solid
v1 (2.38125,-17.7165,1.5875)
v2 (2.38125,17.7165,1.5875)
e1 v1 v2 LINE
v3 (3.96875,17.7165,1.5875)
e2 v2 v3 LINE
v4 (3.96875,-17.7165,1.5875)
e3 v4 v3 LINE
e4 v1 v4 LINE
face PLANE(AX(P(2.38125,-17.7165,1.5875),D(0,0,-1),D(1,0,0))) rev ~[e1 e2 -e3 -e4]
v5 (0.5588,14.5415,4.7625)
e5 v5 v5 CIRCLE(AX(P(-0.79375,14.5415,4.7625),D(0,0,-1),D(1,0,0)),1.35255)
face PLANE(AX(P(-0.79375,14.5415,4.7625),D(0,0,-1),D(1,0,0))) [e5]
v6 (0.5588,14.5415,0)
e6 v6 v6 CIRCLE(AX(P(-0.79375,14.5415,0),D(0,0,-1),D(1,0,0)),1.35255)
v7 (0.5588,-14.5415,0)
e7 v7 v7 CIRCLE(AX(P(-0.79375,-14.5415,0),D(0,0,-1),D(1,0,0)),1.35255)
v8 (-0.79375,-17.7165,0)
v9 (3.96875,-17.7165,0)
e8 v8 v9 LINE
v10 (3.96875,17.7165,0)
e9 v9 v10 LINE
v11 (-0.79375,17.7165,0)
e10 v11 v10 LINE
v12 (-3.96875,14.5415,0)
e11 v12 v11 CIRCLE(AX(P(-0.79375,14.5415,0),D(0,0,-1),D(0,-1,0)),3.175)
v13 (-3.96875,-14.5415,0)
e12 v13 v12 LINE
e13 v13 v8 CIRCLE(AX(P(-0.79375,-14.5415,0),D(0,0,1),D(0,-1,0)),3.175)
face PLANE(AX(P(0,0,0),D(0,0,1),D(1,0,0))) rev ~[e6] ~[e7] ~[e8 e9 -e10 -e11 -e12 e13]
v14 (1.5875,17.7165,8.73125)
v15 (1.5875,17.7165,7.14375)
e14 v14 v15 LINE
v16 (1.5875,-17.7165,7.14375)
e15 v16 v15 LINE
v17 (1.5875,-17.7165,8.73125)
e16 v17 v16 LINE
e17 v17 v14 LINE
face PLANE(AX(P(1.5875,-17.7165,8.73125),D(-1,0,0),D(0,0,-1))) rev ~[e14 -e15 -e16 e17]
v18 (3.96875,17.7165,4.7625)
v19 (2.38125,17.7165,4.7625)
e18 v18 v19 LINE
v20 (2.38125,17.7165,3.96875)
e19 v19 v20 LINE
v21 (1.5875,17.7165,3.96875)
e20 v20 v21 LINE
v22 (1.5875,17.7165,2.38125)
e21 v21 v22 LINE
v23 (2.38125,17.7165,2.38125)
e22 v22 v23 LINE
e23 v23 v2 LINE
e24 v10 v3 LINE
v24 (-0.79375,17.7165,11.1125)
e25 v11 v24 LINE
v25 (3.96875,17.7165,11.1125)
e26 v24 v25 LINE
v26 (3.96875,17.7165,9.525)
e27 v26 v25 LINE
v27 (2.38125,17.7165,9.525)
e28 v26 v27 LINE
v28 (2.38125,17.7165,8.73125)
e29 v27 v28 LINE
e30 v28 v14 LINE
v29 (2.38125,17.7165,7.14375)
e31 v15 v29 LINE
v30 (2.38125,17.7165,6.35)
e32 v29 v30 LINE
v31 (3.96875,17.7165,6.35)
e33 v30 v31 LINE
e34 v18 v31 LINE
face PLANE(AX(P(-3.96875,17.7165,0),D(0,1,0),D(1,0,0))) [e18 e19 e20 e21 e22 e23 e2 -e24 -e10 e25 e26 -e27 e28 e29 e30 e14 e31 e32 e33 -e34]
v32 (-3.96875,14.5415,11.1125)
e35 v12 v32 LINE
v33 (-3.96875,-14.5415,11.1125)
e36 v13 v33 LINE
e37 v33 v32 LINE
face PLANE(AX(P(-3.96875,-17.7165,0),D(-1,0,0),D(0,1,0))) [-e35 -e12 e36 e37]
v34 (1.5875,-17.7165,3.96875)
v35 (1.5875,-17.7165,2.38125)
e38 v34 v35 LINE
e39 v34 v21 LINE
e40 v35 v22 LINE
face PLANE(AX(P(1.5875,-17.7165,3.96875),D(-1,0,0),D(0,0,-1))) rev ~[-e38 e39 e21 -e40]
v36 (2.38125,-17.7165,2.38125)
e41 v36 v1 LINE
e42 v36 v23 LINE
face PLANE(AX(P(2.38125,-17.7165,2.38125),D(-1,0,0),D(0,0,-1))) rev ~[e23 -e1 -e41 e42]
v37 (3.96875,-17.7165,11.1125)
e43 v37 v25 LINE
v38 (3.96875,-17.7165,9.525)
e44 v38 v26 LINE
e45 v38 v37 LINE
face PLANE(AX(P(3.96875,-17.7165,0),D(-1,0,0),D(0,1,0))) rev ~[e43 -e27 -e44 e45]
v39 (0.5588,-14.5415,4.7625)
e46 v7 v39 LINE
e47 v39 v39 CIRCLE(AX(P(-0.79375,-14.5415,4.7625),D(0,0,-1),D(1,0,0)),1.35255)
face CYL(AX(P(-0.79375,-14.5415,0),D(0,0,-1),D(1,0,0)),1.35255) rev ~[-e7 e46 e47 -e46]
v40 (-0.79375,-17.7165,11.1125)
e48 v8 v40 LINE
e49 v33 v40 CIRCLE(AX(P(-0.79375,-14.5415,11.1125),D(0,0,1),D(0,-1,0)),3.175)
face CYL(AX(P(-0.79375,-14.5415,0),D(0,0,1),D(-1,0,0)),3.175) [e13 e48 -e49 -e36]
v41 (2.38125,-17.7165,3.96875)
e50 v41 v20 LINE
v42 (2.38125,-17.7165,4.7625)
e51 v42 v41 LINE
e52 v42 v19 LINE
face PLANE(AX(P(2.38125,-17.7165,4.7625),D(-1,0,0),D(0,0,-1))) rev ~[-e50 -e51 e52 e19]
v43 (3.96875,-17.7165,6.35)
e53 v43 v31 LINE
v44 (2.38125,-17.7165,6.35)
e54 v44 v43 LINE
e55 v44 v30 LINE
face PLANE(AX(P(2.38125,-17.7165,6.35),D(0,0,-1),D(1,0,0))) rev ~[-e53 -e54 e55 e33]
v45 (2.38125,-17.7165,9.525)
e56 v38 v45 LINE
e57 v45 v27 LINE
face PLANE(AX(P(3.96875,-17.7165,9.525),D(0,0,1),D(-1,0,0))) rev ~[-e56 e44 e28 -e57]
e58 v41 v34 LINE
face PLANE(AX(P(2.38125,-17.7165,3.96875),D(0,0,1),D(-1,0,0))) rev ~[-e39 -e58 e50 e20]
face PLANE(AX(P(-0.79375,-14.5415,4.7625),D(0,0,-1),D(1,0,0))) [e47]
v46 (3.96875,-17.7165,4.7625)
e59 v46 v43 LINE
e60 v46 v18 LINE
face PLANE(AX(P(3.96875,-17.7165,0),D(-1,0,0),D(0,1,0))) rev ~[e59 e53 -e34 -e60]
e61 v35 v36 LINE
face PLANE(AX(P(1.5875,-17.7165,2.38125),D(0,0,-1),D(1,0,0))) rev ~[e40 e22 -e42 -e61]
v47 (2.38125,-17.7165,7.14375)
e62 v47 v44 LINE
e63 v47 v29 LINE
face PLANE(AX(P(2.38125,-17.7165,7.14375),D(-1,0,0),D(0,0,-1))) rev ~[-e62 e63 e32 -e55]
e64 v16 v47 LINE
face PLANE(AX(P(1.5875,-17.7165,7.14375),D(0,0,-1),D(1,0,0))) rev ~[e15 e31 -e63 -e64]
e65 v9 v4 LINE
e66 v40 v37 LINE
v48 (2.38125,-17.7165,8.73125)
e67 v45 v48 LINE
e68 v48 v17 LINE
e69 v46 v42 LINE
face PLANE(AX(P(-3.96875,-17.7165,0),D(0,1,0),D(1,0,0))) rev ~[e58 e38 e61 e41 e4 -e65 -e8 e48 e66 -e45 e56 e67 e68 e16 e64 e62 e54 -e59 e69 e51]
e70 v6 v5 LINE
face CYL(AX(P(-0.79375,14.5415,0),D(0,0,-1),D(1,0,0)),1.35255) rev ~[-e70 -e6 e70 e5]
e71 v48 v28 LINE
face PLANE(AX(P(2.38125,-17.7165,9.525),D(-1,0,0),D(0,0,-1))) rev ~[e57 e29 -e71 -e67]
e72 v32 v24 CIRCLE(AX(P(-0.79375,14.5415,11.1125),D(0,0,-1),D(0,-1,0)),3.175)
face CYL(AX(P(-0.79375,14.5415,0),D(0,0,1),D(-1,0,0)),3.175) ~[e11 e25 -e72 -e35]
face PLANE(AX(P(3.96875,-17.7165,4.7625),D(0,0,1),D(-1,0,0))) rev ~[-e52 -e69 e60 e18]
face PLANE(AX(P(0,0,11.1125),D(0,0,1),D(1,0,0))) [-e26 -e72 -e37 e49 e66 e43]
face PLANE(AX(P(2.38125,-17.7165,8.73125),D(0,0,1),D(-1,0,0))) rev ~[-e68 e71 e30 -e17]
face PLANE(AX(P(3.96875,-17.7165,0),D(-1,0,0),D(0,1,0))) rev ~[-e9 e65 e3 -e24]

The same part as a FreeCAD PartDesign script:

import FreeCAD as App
import Part
import Sketcher

V = App.Vector
Q = App.Units.Quantity


def edges_at(feature, points):
    """Names of the edges that pass closest to the given points."""
    edges = feature.Shape.Edges
    near = lambda p: min(range(len(edges)), key=lambda i: edges[i].distToShape(Part.Vertex(*p))[0])
    return sorted({f"Edge{near(p) + 1}" for p in points})


def add_polygon(sketch, points):
    """Adds a closed chain of lines whose ends are joined by coincident constraints."""
    first, n = sketch.GeometryCount, len(points)
    for a, b in zip(points, points[1:] + points[:1]):
        sketch.addGeometry(Part.LineSegment(App.Vector(*a, 0), App.Vector(*b, 0)), False)
    for i in range(n):
        sketch.addConstraint(Sketcher.Constraint("Coincident", first + i, 2, first + (i + 1) % n, 1))

doc = App.newDocument("Part")
body = doc.addObject("PartDesign::Body", "Body")

# Sketch on XY plane
sketch1 = body.newObject("Sketcher::SketchObject", "Sketch")
sketch1.AttachmentSupport = (doc.getObject("XY_Plane"), [""])
sketch1.MapMode = "FlatFace"
add_polygon(sketch1, [(-4, 18), (-4, -18), (4, -18), (4, 18)])  # lines 0-3
sketch1.addConstraint([
    Sketcher.Constraint("Vertical", 0),
    Sketcher.Constraint("Horizontal", 1),
    Sketcher.Constraint("Vertical", 2),
    Sketcher.Constraint("Horizontal", 3),
    Sketcher.Constraint("Symmetric", 0, 2, 2, 2, -1, 1),
    Sketcher.Constraint("DistanceX", 1, 1, 1, 2, Q("0.3125 in")),
    Sketcher.Constraint("DistanceY", 0, 2, 0, 1, Q("1.395 in")),
])
pad1 = body.newObject("PartDesign::Pad", "Pad")
pad1.Profile = sketch1
pad1.Length = Q("0.4375 in")

# Sketch on XZ plane
sketch2 = body.newObject("Sketcher::SketchObject", "Sketch001")
sketch2.AttachmentSupport = (doc.getObject("XZ_Plane"), [""])
sketch2.MapMode = "FlatFace"
sketch2.AttachmentOffset = App.Placement(V(0, 0, 0.6975 * 25.4), App.Rotation())
add_polygon(sketch2, [(4, 9.5), (2.4, 9.5), (2.4, 8.7), (1.6, 8.7), (1.6, 7.1), (2.4, 7.1), (2.4, 6.3), (4, 6.3)])  # lines 0-7
add_polygon(sketch2, [(4, 4.8), (2.4, 4.8), (2.4, 4), (1.6, 4), (1.6, 2.4), (2.4, 2.4), (2.4, 1.6), (4, 1.6)])  # lines 8-15
sketch2.addConstraint([
    Sketcher.Constraint("Horizontal", 0),
    Sketcher.Constraint("Vertical", 1),
    Sketcher.Constraint("Horizontal", 2),
    Sketcher.Constraint("Vertical", 3),
    Sketcher.Constraint("Horizontal", 4),
    Sketcher.Constraint("Vertical", 5),
    Sketcher.Constraint("Horizontal", 6),
    Sketcher.Constraint("Vertical", 7),
    Sketcher.Constraint("Horizontal", 8),
    Sketcher.Constraint("Vertical", 9),
    Sketcher.Constraint("Horizontal", 10),
    Sketcher.Constraint("Vertical", 11),
    Sketcher.Constraint("Horizontal", 12),
    Sketcher.Constraint("Vertical", 13),
    Sketcher.Constraint("Horizontal", 14),
    Sketcher.Constraint("Vertical", 15),
    Sketcher.Constraint("Vertical", 1, 2, 4, 2),
    Sketcher.Constraint("Vertical", 5, 2, 8, 2),
    Sketcher.Constraint("Vertical", 3, 2, 10, 2),
    Sketcher.Constraint("Vertical", 9, 2, 12, 2),
    Sketcher.Constraint("Vertical", 7, 2, 14, 2),
    Sketcher.Constraint("Equal", 12, 1),
    Sketcher.Constraint("Equal", 14, 3),
    Sketcher.Constraint("Equal", 1, 5),
    Sketcher.Constraint("Equal", 5, 9),
    Sketcher.Constraint("Equal", 3, 11),
    Sketcher.Constraint("Equal", 9, 13),
    Sketcher.Constraint("DistanceX", 0, 2, 0, 1, Q("0.0625 in")),
    Sketcher.Constraint("DistanceX", 2, 2, 2, 1, Q("0.03125 in")),
    Sketcher.Constraint("DistanceY", -1, 1, 5, 2, Q("0.25 in")),
    Sketcher.Constraint("DistanceX", -1, 1, 0, 2, Q("0.09375 in")),
    Sketcher.Constraint("DistanceY", -1, 1, 8, 2, Q("0.1875 in")),
])
pocket1 = body.newObject("PartDesign::Pocket", "Pocket")
pocket1.Profile = sketch2
pocket1.Type = "ThroughAll"

# Sketch on XY plane
sketch3 = body.newObject("Sketcher::SketchObject", "Sketch002")
sketch3.AttachmentSupport = (doc.getObject("XY_Plane"), [""])
sketch3.MapMode = "FlatFace"
sketch3.addGeometry([
    Part.Circle(V(-0.8, -14.5, 0), V(0, 0, 1), 1.4),
    Part.Circle(V(-0.8, 14.5, 0), V(0, 0, 1), 1.4),
], False)
sketch3.addConstraint([
    Sketcher.Constraint("Equal", 0, 1),
    Sketcher.Constraint("Symmetric", 0, 3, 1, 3, -1),
    Sketcher.Constraint("Diameter", 0, Q("0.1065 in")),
    Sketcher.Constraint("DistanceX", 0, 3, -1, 1, Q("0.03125 in")),
    Sketcher.Constraint("DistanceY", 0, 3, 1, 3, Q("1.145 in")),
])
pocket2 = body.newObject("PartDesign::Pocket", "Pocket001")
pocket2.Profile = sketch3
pocket2.Length = Q("0.1875 in")
pocket2.Reversed = True
doc.recompute()

fillet = body.newObject("PartDesign::Fillet", "Fillet")
fillet.Base = (pocket2, edges_at(pocket2, [(-3.969, 17.716, 5.556), (-3.969, -17.716, 5.556)]))
fillet.Radius = Q("0.125 in")

doc.recompute()
